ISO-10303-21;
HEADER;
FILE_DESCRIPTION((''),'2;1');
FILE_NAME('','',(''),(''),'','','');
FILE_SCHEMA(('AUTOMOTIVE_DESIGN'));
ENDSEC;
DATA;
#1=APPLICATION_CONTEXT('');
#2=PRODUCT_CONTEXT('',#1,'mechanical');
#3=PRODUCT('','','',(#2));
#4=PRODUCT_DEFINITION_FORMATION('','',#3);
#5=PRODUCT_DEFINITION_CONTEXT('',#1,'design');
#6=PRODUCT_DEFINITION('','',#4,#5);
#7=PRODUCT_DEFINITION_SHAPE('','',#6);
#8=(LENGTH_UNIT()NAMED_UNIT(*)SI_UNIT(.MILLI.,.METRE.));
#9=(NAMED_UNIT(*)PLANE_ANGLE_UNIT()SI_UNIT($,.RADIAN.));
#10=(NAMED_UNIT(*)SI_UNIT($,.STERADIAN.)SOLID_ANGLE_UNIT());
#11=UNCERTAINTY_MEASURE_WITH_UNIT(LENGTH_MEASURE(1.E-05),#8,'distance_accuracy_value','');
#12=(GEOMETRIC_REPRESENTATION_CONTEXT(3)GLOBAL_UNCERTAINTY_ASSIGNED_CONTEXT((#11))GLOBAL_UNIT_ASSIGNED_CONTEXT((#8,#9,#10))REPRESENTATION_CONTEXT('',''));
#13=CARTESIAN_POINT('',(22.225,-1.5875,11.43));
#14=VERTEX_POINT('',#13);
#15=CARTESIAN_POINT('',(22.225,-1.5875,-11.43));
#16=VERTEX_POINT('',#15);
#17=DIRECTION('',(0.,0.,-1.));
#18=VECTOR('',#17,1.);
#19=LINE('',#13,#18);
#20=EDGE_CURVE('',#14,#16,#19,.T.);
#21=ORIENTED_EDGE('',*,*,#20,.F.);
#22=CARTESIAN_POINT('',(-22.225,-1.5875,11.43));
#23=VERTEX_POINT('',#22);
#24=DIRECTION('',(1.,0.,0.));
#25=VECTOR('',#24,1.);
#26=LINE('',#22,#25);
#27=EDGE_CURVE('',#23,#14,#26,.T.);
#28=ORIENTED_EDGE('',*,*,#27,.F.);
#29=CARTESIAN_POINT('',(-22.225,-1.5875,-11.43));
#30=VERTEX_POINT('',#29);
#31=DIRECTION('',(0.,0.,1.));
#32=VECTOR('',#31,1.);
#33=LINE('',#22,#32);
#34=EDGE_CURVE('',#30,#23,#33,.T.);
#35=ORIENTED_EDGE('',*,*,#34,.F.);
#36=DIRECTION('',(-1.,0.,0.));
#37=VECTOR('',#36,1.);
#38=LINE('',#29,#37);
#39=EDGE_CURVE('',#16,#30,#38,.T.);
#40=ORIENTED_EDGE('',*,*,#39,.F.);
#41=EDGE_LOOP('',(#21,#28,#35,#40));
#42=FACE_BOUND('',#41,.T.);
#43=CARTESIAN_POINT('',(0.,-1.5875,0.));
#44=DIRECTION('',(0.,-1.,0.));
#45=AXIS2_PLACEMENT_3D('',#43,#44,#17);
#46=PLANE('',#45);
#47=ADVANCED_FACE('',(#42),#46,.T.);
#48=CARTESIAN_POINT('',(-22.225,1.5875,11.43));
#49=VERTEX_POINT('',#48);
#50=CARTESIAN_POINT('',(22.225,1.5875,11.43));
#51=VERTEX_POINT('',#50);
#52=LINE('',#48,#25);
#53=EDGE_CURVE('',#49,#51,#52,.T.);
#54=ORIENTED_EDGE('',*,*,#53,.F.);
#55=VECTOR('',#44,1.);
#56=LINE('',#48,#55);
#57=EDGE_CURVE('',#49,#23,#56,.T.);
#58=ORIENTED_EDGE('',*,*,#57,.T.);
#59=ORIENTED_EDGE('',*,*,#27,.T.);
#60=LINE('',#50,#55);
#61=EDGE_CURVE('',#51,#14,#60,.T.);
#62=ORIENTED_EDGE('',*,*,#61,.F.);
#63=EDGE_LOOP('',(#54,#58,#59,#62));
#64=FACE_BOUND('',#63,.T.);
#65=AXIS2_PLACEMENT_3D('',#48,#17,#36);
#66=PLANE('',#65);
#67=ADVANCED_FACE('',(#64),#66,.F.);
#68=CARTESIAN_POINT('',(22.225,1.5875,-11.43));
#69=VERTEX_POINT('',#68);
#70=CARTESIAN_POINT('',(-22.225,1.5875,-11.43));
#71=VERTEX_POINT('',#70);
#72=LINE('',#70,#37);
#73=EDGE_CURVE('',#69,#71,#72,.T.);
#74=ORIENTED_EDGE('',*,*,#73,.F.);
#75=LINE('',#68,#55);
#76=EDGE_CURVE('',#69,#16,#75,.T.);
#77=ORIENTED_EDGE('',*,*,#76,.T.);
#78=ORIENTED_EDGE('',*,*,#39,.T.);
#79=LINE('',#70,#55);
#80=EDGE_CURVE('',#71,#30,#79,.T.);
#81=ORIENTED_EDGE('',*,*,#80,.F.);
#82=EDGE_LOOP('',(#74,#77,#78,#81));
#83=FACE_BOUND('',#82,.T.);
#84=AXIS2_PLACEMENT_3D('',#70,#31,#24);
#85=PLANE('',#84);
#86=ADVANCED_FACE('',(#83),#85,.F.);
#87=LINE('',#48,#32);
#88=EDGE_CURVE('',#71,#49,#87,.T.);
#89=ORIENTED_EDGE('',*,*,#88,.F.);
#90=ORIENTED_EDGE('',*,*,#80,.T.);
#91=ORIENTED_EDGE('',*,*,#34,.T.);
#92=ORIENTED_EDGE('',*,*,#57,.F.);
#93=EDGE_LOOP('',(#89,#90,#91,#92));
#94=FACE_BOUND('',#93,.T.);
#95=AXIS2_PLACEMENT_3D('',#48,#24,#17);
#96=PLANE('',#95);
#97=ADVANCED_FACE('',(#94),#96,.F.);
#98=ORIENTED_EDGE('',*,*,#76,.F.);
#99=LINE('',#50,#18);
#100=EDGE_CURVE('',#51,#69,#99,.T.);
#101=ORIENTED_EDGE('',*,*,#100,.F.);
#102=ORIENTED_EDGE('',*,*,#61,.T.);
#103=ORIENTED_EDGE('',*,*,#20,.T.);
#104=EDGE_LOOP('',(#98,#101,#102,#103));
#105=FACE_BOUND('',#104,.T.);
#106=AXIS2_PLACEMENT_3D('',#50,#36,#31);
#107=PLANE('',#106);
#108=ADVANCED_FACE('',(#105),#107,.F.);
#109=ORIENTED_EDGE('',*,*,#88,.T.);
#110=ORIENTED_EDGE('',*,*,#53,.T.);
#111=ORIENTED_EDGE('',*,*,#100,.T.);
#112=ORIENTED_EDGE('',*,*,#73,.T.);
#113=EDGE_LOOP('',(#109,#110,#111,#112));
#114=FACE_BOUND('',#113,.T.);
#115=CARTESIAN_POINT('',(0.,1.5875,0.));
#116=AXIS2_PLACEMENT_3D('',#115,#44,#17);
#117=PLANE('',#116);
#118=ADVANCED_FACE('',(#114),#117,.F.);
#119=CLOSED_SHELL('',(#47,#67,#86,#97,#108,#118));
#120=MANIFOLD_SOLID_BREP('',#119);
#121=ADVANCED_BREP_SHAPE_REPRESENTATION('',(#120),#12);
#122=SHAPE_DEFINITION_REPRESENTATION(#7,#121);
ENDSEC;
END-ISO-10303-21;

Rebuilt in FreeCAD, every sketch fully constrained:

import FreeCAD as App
import Part
import Sketcher
from FreeCAD import Vector
Q = App.Units.Quantity

doc = App.newDocument("Part")
body = doc.addObject("PartDesign::Body", "Body")

sketch1 = doc.addObject("Sketcher::SketchObject", "Sketch")
body.addObject(sketch1)
sketch1.AttachmentSupport = (doc.XZ_Plane, [""])
sketch1.MapMode = "FlatFace"
sketch1.addGeometry([
    Part.LineSegment(Vector(-22, -11, 0), Vector(-22, 11, 0)),
    Part.LineSegment(Vector(-22, 11, 0), Vector(22, 11, 0)),
    Part.LineSegment(Vector(22, 11, 0), Vector(22, -11, 0)),
    Part.LineSegment(Vector(22, -11, 0), Vector(-22, -11, 0)),
], False)
sketch1.addConstraint([
    Sketcher.Constraint("Coincident", 0, 2, 1, 1),
    Sketcher.Constraint("Coincident", 1, 2, 2, 1),
    Sketcher.Constraint("Coincident", 2, 2, 3, 1),
    Sketcher.Constraint("Coincident", 3, 2, 0, 1),
    Sketcher.Constraint("Vertical", 0),
    Sketcher.Constraint("Horizontal", 1),
    Sketcher.Constraint("Vertical", 2),
    Sketcher.Constraint("Horizontal", 3),
    Sketcher.Constraint("Symmetric", 0, 2, 2, 2, -1, 1),
    Sketcher.Constraint("DistanceY", 0, 1, 0, 2, Q("0.9 in")),
    Sketcher.Constraint("DistanceX", 1, 1, 1, 2, Q("1.75 in")),
])
pad1 = doc.addObject("PartDesign::Pad", "Pad")
body.addObject(pad1)
pad1.Profile = sketch1
pad1.Length = Q("0.125 in")
pad1.Midplane = True

doc.recompute()
